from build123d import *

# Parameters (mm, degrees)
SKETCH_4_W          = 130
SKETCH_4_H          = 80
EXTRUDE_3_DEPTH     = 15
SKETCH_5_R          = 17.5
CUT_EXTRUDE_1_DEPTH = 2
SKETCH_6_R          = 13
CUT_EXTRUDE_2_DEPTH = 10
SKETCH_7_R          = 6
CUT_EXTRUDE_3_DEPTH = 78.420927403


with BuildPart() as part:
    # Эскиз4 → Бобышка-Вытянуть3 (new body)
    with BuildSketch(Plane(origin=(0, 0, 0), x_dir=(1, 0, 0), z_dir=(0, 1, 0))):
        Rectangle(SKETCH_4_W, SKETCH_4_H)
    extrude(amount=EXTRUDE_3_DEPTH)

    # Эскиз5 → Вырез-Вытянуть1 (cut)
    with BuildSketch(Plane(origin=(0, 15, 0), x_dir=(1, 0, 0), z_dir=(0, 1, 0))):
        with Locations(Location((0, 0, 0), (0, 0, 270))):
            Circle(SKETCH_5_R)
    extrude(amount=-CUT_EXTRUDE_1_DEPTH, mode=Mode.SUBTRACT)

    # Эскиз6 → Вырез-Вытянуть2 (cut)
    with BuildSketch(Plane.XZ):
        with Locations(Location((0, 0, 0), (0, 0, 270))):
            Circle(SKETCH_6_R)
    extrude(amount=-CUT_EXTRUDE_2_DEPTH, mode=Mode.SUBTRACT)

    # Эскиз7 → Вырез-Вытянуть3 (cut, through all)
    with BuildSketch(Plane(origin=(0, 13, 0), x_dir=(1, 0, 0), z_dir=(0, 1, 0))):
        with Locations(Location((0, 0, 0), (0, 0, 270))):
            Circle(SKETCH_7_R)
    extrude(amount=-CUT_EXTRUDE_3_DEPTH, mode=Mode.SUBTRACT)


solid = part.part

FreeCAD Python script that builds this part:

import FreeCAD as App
import Part
import Sketcher


def add_polygon(sketch, points):
    """Adds a closed chain of lines whose ends are joined by coincident constraints."""
    first, n = sketch.GeometryCount, len(points)
    for a, b in zip(points, points[1:] + points[:1]):
        sketch.addGeometry(Part.LineSegment(App.Vector(*a, 0), App.Vector(*b, 0)), False)
    for i in range(n):
        sketch.addConstraint(Sketcher.Constraint("Coincident", first + i, 2, first + (i + 1) % n, 1))

doc = App.newDocument("Part")
body = doc.addObject("PartDesign::Body", "Body")

# Sketch on XZ plane
sketch1 = body.newObject("Sketcher::SketchObject", "Sketch")
sketch1.AttachmentSupport = (doc.getObject("XZ_Plane"), [""])
sketch1.MapMode = "FlatFace"
add_polygon(sketch1, [(-65, -40), (-65, 40), (65, 40), (65, -40)])  # lines 0-3
sketch1.addConstraint([
    Sketcher.Constraint("Vertical", 0),
    Sketcher.Constraint("Horizontal", 1),
    Sketcher.Constraint("Vertical", 2),
    Sketcher.Constraint("Horizontal", 3),
    Sketcher.Constraint("Symmetric", 0, 2, 2, 2, -1, 1),
    Sketcher.Constraint("DistanceX", 1, 1, 1, 2, 130.0),
    Sketcher.Constraint("DistanceY", 0, 1, 0, 2, 80.0),
])
pad1 = body.newObject("PartDesign::Pad", "Pad")
pad1.Profile = sketch1
pad1.Length = 15
pad1.Reversed = True

# Sketch on XZ plane
sketch2 = body.newObject("Sketcher::SketchObject", "Sketch001")
sketch2.AttachmentSupport = (doc.getObject("XZ_Plane"), [""])
sketch2.MapMode = "FlatFace"
sketch2.AttachmentOffset = App.Placement(App.Vector(0, 0, -15), App.Rotation())
sketch2.addGeometry(Part.Circle(App.Vector(0, 0, 0), App.Vector(0, 0, 1), 17.5), False)
sketch2.addConstraint([
    Sketcher.Constraint("Coincident", 0, 3, -1, 1),
    Sketcher.Constraint("Diameter", 0, 35.0),
])
pocket1 = body.newObject("PartDesign::Pocket", "Pocket")
pocket1.Profile = sketch2
pocket1.Length = 2
pocket1.Reversed = True

# Sketch on XZ plane
sketch3 = body.newObject("Sketcher::SketchObject", "Sketch002")
sketch3.AttachmentSupport = (doc.getObject("XZ_Plane"), [""])
sketch3.MapMode = "FlatFace"
sketch3.addGeometry(Part.Circle(App.Vector(0, 0, 0), App.Vector(0, 0, 1), 13), False)
sketch3.addConstraint([
    Sketcher.Constraint("Coincident", 0, 3, -1, 1),
    Sketcher.Constraint("Diameter", 0, 26.0),
])
pocket2 = body.newObject("PartDesign::Pocket", "Pocket001")
pocket2.Profile = sketch3
pocket2.Length = 10

# Sketch on XZ plane
sketch4 = body.newObject("Sketcher::SketchObject", "Sketch003")
sketch4.AttachmentSupport = (doc.getObject("XZ_Plane"), [""])
sketch4.MapMode = "FlatFace"
sketch4.AttachmentOffset = App.Placement(App.Vector(0, 0, -13), App.Rotation())
sketch4.addGeometry(Part.Circle(App.Vector(0, 0, 0), App.Vector(0, 0, 1), 6), False)
sketch4.addConstraint([
    Sketcher.Constraint("Coincident", 0, 3, -1, 1),
    Sketcher.Constraint("Diameter", 0, 12.0),
])
pocket3 = body.newObject("PartDesign::Pocket", "Pocket002")
pocket3.Profile = sketch4
pocket3.Type = "ThroughAll"
pocket3.Reversed = True

doc.recompute()
